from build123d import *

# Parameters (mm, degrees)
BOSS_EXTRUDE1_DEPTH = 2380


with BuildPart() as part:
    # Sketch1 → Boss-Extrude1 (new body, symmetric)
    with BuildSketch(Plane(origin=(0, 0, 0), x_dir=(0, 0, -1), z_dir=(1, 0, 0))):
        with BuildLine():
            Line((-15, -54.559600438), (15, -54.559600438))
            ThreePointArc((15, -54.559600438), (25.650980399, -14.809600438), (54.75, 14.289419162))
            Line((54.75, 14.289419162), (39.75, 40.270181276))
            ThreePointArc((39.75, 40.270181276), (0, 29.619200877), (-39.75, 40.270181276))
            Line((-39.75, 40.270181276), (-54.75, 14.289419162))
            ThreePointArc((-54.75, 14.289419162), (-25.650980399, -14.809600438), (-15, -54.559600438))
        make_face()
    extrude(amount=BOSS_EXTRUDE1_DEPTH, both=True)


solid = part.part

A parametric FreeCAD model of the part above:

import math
import FreeCAD as App
import Part
import Sketcher
from FreeCAD import Vector
Q = App.Units.Quantity

doc = App.newDocument("Part")
params = doc.addObject("Spreadsheet::Sheet", "Params")
for row, (alias, value) in enumerate([
    ("sketch1_radius", "79.5 mm"),
    ("sketch1_height", "30 mm"),
    ("sketch1_length", "30 mm"),
    ("pad1_length", "4760 mm"),
], start=1):
    params.set(f"A{row}", alias)
    params.set(f"B{row}", "=" + value)
    params.setAlias(f"B{row}", alias)

body = doc.addObject("PartDesign::Body", "Body")

# Sketch on YZ plane
sketch1 = doc.addObject("Sketcher::SketchObject", "Sketch")
body.addObject(sketch1)
sketch1.AttachmentSupport = (doc.YZ_Plane, [""])
sketch1.MapMode = "FlatFace"
sketch1.addGeometry(Part.LineSegment(Vector(-55, 15, 0), Vector(-55, -15, 0)), False)
sketch1.addGeometry(Part.ArcOfCircle(Part.Circle(Vector(-55, -94, 0), Vector(0, 0, 1), 79), math.radians(30), math.radians(90)), False)
sketch1.addGeometry(Part.LineSegment(Vector(14, -55, 0), Vector(40, -40, 0)), False)
sketch1.addGeometry(Part.ArcOfCircle(Part.Circle(Vector(109, 0, 0), Vector(0, 0, 1), 80), math.radians(150), math.radians(210)), False)
sketch1.addGeometry(Part.LineSegment(Vector(40, 40, 0), Vector(14, 55, 0)), False)
sketch1.addGeometry(Part.ArcOfCircle(Part.Circle(Vector(-55, 94, 0), Vector(0, 0, 1), 79), math.radians(-90), math.radians(-30)), False)
sketch1.addConstraint(Sketcher.Constraint("Coincident", 0, 2, 1, 2))
sketch1.addConstraint(Sketcher.Constraint("Coincident", 1, 1, 2, 1))
sketch1.addConstraint(Sketcher.Constraint("Coincident", 2, 2, 3, 2))
sketch1.addConstraint(Sketcher.Constraint("Coincident", 3, 1, 4, 1))
sketch1.addConstraint(Sketcher.Constraint("Coincident", 4, 2, 5, 2))
sketch1.addConstraint(Sketcher.Constraint("Coincident", 5, 1, 0, 1))
sketch1.addConstraint(Sketcher.Constraint("Vertical", 0))
sketch1.addConstraint(Sketcher.Constraint("Equal", 1, 3))
sketch1.addConstraint(Sketcher.Constraint("Equal", 3, 5))
sketch1.addConstraint(Sketcher.Constraint("Symmetric", 1, 3, 5, 3, -1))
sketch1.addConstraint(Sketcher.Constraint("Symmetric", 2, 2, 3, 1, -1))
sketch1.addConstraint(Sketcher.Constraint("Vertical", 5, 3, 0, 2))
sketch1.addConstraint(Sketcher.Constraint("Vertical", 1, 1, 4, 2))
sketch1.addConstraint(Sketcher.Constraint("Radius", 1, Q("79.5 mm")))
sketch1.addConstraint(Sketcher.Constraint("DistanceY", 0, 2, 0, 1, Q("30 mm")))
sketch1.addConstraint(Sketcher.Constraint("Angle", 2, Q("30 deg")))
sketch1.addConstraint(Sketcher.Constraint("Distance", 2, Q("30 mm")))
sketch1.addConstraint(Sketcher.Constraint("DistanceY", 2, 2, 3, 1, Q("79.5 mm")))
sketch1.addConstraint(Sketcher.Constraint("DistanceX", 1, 3, -1, 1, Q("54.5596 mm")))
sketch1.setExpression("Constraints[13]", "Params.sketch1_radius")
sketch1.setExpression("Constraints[14]", "Params.sketch1_height")
sketch1.setExpression("Constraints[16]", "Params.sketch1_length")
pad1 = doc.addObject("PartDesign::Pad", "Pad")
body.addObject(pad1)
pad1.Profile = sketch1
pad1.setExpression("Length", "Params.pad1_length")
pad1.Midplane = True

doc.recompute()
